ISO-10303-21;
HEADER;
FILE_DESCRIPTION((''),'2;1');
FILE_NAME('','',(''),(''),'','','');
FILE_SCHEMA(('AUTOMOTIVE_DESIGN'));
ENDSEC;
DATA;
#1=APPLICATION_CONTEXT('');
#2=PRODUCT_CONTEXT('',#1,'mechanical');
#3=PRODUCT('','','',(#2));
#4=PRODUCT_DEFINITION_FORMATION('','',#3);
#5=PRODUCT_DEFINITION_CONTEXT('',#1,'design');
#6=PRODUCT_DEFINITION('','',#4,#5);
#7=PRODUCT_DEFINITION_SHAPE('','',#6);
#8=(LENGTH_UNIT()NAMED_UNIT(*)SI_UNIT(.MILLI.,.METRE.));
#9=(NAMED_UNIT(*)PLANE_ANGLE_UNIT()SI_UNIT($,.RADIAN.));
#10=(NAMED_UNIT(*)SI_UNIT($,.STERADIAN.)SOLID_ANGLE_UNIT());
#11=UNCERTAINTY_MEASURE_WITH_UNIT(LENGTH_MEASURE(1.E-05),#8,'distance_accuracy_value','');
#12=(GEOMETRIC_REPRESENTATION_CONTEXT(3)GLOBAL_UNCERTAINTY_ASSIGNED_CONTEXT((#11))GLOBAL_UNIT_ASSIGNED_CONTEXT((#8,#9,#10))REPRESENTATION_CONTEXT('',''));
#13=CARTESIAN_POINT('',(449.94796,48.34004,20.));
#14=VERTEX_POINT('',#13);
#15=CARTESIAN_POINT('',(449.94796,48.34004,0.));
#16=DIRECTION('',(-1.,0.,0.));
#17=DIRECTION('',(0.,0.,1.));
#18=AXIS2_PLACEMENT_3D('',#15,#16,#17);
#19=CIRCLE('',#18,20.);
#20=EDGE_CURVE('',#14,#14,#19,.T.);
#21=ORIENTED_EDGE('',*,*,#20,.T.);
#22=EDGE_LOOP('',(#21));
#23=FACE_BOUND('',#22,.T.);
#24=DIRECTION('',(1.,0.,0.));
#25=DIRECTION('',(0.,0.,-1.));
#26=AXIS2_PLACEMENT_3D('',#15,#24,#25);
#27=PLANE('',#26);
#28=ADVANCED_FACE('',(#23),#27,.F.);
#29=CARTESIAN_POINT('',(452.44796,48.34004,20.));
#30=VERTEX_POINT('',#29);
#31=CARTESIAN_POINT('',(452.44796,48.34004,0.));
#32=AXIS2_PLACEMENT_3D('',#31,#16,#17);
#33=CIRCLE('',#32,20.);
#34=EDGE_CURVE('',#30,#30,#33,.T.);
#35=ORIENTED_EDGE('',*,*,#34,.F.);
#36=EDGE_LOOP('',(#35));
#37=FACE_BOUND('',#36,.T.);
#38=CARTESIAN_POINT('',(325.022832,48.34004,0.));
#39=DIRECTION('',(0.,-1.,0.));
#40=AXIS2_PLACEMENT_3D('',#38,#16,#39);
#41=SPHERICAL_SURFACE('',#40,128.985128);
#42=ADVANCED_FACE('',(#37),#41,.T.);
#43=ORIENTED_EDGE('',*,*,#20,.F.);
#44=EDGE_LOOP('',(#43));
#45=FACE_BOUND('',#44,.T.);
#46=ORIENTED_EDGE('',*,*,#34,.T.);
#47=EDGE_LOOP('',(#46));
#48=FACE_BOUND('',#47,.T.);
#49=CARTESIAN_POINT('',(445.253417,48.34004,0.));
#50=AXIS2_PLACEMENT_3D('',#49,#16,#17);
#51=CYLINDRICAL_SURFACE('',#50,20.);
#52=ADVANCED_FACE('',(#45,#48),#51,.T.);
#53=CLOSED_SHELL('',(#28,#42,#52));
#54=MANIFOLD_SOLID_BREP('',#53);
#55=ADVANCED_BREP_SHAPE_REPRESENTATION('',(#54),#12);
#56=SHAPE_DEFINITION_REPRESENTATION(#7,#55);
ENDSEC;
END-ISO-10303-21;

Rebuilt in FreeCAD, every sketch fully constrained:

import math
import FreeCAD as App
import Part
import Sketcher
Q = App.Units.Quantity

doc = App.newDocument("Part")
body = doc.addObject("PartDesign::Body", "Body")

# Sketch on XY plane
sketch1 = doc.addObject("Sketcher::SketchObject", "Sketch")
body.addObject(sketch1)
sketch1.AttachmentSupport = (doc.XY_Plane, [""])
sketch1.MapMode = "FlatFace"
sketch1.addGeometry([
    Part.LineSegment(App.Vector(449.9, 68.3, 0), App.Vector(449.9, 48.3, 0)),
    Part.LineSegment(App.Vector(449.9, 48.3, 0), App.Vector(454, 48.3, 0)),
    Part.ArcOfCircle(Part.Circle(App.Vector(325, 48.3, 0), App.Vector(0, 0, 1), 129), math.radians(0), math.radians(8.92)),
    Part.LineSegment(App.Vector(452.4, 68.3, 0), App.Vector(449.9, 68.3, 0)),
], False)
sketch1.addGeometry(Part.LineSegment(App.Vector(325, 48.3, 0), App.Vector(454, 48.3, 0)), True)  # axis
sketch1.addConstraint([
    Sketcher.Constraint("Coincident", 0, 2, 1, 1),
    Sketcher.Constraint("Coincident", 1, 2, 2, 1),
    Sketcher.Constraint("Coincident", 2, 2, 3, 1),
    Sketcher.Constraint("Coincident", 3, 2, 0, 1),
    Sketcher.Constraint("Vertical", 0),
    Sketcher.Constraint("Horizontal", 1),
    Sketcher.Constraint("Horizontal", 3),
    Sketcher.Constraint("Horizontal", 4),
    Sketcher.Constraint("Coincident", 4, 1, 2, 3),
    Sketcher.Constraint("Coincident", 4, 2, 1, 2),
    Sketcher.Constraint("DistanceY", 0, 2, 0, 1, Q("20 mm")),
    Sketcher.Constraint("DistanceX", 3, 2, 3, 1, Q("2.5 mm")),
    Sketcher.Constraint("DistanceX", 1, 1, 1, 2, Q("4.06 mm")),
    Sketcher.Constraint("DistanceY", -1, 1, 2, 3, Q("48.34004 mm")),
    Sketcher.Constraint("DistanceX", -1, 1, 0, 2, Q("449.94796 mm")),
])
revolution = doc.addObject("PartDesign::Revolution", "Revolution")
body.addObject(revolution)
revolution.Profile = sketch1
revolution.ReferenceAxis = (sketch1, ["Axis0"])
revolution.Angle = 360

doc.recompute()
